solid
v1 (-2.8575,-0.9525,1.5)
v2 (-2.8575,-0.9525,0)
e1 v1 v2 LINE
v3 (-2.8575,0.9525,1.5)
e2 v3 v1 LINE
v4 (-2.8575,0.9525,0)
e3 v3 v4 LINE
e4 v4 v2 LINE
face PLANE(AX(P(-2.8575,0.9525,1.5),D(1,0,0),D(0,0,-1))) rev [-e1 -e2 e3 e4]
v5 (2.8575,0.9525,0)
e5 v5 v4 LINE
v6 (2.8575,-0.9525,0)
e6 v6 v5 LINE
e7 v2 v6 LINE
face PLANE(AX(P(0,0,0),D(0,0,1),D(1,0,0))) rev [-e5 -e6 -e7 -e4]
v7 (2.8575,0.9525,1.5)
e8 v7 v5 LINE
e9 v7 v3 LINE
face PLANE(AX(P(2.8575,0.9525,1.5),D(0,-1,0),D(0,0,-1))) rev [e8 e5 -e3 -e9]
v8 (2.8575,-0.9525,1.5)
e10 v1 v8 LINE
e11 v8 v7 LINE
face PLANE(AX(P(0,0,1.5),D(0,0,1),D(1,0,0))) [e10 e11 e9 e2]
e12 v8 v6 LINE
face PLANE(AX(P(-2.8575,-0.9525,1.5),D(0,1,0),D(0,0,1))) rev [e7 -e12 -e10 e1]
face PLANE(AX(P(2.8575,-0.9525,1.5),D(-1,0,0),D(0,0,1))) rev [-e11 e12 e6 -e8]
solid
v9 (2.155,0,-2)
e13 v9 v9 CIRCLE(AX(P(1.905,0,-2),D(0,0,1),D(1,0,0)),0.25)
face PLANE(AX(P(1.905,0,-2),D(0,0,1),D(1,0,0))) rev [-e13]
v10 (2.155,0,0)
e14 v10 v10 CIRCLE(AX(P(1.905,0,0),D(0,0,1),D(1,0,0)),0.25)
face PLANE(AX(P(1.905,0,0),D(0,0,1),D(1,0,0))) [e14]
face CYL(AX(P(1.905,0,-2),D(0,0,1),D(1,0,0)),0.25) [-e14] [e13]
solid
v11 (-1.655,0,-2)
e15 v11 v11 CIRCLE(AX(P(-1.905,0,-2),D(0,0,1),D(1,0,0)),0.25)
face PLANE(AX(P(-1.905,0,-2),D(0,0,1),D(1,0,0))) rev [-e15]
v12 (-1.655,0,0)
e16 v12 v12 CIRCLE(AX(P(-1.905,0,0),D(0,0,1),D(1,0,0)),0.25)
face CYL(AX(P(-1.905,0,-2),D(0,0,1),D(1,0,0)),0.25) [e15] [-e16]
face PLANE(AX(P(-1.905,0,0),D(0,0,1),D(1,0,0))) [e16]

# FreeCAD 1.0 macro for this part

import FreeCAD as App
import Part
import Sketcher
Q = App.Units.Quantity


def add_polygon(sketch, points):
    """Adds a closed chain of lines whose ends are joined by coincident constraints."""
    first, n = sketch.GeometryCount, len(points)
    for a, b in zip(points, points[1:] + points[:1]):
        sketch.addGeometry(Part.LineSegment(App.Vector(*a, 0), App.Vector(*b, 0)), False)
    for i in range(n):
        sketch.addConstraint(Sketcher.Constraint("Coincident", first + i, 2, first + (i + 1) % n, 1))

doc = App.newDocument("Part")
body = doc.addObject("PartDesign::Body", "Body")

sketch1 = body.newObject("Sketcher::SketchObject", "Sketch")
sketch1.AttachmentSupport = (doc.getObject("XY_Plane"), [""])
sketch1.MapMode = "FlatFace"
add_polygon(sketch1, [(-2.9, 1), (-2.9, -1), (2.9, -1), (2.9, 1)])
sketch1.addConstraint([
    Sketcher.Constraint("Vertical", 0),
    Sketcher.Constraint("Horizontal", 1),
    Sketcher.Constraint("Vertical", 2),
    Sketcher.Constraint("Horizontal", 3),
    Sketcher.Constraint("Symmetric", 0, 2, 2, 2, -1, 1),
    Sketcher.Constraint("DistanceX", 1, 1, 1, 2, Q("5.715 mm")),
    Sketcher.Constraint("DistanceY", 0, 2, 0, 1, Q("1.905 mm")),
])
pad1 = body.newObject("PartDesign::Pad", "Pad")
pad1.Profile = sketch1
pad1.Length = 1.5
body2 = doc.addObject("PartDesign::Body", "Body001")

sketch2 = body2.newObject("Sketcher::SketchObject", "Sketch001")
sketch2.AttachmentSupport = (doc.getObject("XY_Plane001"), [""])
sketch2.MapMode = "FlatFace"
sketch2.addGeometry(Part.Circle(App.Vector(-1.91, 0, 0), App.Vector(0, 0, 1), 0.25), False)
sketch2.addConstraint([
    Sketcher.Constraint("PointOnObject", 0, 3, -1),
    Sketcher.Constraint("Diameter", 0, Q("0.5 mm")),
    Sketcher.Constraint("DistanceX", 0, 3, -1, 1, Q("1.905 mm")),
])
pad2 = body2.newObject("PartDesign::Pad", "Pad001")
pad2.Profile = sketch2
pad2.Length = 2
pad2.Reversed = True
body3 = doc.addObject("PartDesign::Body", "Body002")

sketch3 = body3.newObject("Sketcher::SketchObject", "Sketch002")
sketch3.AttachmentSupport = (doc.getObject("XY_Plane002"), [""])
sketch3.MapMode = "FlatFace"
sketch3.addGeometry(Part.Circle(App.Vector(1.91, 0, 0), App.Vector(0, 0, 1), 0.25), False)
sketch3.addConstraint([
    Sketcher.Constraint("PointOnObject", 0, 3, -1),
    Sketcher.Constraint("Diameter", 0, Q("0.5 mm")),
    Sketcher.Constraint("DistanceX", -1, 1, 0, 3, Q("1.905 mm")),
])
pad3 = body3.newObject("PartDesign::Pad", "Pad002")
pad3.Profile = sketch3
pad3.Length = 2
pad3.Reversed = True

doc.recompute()
